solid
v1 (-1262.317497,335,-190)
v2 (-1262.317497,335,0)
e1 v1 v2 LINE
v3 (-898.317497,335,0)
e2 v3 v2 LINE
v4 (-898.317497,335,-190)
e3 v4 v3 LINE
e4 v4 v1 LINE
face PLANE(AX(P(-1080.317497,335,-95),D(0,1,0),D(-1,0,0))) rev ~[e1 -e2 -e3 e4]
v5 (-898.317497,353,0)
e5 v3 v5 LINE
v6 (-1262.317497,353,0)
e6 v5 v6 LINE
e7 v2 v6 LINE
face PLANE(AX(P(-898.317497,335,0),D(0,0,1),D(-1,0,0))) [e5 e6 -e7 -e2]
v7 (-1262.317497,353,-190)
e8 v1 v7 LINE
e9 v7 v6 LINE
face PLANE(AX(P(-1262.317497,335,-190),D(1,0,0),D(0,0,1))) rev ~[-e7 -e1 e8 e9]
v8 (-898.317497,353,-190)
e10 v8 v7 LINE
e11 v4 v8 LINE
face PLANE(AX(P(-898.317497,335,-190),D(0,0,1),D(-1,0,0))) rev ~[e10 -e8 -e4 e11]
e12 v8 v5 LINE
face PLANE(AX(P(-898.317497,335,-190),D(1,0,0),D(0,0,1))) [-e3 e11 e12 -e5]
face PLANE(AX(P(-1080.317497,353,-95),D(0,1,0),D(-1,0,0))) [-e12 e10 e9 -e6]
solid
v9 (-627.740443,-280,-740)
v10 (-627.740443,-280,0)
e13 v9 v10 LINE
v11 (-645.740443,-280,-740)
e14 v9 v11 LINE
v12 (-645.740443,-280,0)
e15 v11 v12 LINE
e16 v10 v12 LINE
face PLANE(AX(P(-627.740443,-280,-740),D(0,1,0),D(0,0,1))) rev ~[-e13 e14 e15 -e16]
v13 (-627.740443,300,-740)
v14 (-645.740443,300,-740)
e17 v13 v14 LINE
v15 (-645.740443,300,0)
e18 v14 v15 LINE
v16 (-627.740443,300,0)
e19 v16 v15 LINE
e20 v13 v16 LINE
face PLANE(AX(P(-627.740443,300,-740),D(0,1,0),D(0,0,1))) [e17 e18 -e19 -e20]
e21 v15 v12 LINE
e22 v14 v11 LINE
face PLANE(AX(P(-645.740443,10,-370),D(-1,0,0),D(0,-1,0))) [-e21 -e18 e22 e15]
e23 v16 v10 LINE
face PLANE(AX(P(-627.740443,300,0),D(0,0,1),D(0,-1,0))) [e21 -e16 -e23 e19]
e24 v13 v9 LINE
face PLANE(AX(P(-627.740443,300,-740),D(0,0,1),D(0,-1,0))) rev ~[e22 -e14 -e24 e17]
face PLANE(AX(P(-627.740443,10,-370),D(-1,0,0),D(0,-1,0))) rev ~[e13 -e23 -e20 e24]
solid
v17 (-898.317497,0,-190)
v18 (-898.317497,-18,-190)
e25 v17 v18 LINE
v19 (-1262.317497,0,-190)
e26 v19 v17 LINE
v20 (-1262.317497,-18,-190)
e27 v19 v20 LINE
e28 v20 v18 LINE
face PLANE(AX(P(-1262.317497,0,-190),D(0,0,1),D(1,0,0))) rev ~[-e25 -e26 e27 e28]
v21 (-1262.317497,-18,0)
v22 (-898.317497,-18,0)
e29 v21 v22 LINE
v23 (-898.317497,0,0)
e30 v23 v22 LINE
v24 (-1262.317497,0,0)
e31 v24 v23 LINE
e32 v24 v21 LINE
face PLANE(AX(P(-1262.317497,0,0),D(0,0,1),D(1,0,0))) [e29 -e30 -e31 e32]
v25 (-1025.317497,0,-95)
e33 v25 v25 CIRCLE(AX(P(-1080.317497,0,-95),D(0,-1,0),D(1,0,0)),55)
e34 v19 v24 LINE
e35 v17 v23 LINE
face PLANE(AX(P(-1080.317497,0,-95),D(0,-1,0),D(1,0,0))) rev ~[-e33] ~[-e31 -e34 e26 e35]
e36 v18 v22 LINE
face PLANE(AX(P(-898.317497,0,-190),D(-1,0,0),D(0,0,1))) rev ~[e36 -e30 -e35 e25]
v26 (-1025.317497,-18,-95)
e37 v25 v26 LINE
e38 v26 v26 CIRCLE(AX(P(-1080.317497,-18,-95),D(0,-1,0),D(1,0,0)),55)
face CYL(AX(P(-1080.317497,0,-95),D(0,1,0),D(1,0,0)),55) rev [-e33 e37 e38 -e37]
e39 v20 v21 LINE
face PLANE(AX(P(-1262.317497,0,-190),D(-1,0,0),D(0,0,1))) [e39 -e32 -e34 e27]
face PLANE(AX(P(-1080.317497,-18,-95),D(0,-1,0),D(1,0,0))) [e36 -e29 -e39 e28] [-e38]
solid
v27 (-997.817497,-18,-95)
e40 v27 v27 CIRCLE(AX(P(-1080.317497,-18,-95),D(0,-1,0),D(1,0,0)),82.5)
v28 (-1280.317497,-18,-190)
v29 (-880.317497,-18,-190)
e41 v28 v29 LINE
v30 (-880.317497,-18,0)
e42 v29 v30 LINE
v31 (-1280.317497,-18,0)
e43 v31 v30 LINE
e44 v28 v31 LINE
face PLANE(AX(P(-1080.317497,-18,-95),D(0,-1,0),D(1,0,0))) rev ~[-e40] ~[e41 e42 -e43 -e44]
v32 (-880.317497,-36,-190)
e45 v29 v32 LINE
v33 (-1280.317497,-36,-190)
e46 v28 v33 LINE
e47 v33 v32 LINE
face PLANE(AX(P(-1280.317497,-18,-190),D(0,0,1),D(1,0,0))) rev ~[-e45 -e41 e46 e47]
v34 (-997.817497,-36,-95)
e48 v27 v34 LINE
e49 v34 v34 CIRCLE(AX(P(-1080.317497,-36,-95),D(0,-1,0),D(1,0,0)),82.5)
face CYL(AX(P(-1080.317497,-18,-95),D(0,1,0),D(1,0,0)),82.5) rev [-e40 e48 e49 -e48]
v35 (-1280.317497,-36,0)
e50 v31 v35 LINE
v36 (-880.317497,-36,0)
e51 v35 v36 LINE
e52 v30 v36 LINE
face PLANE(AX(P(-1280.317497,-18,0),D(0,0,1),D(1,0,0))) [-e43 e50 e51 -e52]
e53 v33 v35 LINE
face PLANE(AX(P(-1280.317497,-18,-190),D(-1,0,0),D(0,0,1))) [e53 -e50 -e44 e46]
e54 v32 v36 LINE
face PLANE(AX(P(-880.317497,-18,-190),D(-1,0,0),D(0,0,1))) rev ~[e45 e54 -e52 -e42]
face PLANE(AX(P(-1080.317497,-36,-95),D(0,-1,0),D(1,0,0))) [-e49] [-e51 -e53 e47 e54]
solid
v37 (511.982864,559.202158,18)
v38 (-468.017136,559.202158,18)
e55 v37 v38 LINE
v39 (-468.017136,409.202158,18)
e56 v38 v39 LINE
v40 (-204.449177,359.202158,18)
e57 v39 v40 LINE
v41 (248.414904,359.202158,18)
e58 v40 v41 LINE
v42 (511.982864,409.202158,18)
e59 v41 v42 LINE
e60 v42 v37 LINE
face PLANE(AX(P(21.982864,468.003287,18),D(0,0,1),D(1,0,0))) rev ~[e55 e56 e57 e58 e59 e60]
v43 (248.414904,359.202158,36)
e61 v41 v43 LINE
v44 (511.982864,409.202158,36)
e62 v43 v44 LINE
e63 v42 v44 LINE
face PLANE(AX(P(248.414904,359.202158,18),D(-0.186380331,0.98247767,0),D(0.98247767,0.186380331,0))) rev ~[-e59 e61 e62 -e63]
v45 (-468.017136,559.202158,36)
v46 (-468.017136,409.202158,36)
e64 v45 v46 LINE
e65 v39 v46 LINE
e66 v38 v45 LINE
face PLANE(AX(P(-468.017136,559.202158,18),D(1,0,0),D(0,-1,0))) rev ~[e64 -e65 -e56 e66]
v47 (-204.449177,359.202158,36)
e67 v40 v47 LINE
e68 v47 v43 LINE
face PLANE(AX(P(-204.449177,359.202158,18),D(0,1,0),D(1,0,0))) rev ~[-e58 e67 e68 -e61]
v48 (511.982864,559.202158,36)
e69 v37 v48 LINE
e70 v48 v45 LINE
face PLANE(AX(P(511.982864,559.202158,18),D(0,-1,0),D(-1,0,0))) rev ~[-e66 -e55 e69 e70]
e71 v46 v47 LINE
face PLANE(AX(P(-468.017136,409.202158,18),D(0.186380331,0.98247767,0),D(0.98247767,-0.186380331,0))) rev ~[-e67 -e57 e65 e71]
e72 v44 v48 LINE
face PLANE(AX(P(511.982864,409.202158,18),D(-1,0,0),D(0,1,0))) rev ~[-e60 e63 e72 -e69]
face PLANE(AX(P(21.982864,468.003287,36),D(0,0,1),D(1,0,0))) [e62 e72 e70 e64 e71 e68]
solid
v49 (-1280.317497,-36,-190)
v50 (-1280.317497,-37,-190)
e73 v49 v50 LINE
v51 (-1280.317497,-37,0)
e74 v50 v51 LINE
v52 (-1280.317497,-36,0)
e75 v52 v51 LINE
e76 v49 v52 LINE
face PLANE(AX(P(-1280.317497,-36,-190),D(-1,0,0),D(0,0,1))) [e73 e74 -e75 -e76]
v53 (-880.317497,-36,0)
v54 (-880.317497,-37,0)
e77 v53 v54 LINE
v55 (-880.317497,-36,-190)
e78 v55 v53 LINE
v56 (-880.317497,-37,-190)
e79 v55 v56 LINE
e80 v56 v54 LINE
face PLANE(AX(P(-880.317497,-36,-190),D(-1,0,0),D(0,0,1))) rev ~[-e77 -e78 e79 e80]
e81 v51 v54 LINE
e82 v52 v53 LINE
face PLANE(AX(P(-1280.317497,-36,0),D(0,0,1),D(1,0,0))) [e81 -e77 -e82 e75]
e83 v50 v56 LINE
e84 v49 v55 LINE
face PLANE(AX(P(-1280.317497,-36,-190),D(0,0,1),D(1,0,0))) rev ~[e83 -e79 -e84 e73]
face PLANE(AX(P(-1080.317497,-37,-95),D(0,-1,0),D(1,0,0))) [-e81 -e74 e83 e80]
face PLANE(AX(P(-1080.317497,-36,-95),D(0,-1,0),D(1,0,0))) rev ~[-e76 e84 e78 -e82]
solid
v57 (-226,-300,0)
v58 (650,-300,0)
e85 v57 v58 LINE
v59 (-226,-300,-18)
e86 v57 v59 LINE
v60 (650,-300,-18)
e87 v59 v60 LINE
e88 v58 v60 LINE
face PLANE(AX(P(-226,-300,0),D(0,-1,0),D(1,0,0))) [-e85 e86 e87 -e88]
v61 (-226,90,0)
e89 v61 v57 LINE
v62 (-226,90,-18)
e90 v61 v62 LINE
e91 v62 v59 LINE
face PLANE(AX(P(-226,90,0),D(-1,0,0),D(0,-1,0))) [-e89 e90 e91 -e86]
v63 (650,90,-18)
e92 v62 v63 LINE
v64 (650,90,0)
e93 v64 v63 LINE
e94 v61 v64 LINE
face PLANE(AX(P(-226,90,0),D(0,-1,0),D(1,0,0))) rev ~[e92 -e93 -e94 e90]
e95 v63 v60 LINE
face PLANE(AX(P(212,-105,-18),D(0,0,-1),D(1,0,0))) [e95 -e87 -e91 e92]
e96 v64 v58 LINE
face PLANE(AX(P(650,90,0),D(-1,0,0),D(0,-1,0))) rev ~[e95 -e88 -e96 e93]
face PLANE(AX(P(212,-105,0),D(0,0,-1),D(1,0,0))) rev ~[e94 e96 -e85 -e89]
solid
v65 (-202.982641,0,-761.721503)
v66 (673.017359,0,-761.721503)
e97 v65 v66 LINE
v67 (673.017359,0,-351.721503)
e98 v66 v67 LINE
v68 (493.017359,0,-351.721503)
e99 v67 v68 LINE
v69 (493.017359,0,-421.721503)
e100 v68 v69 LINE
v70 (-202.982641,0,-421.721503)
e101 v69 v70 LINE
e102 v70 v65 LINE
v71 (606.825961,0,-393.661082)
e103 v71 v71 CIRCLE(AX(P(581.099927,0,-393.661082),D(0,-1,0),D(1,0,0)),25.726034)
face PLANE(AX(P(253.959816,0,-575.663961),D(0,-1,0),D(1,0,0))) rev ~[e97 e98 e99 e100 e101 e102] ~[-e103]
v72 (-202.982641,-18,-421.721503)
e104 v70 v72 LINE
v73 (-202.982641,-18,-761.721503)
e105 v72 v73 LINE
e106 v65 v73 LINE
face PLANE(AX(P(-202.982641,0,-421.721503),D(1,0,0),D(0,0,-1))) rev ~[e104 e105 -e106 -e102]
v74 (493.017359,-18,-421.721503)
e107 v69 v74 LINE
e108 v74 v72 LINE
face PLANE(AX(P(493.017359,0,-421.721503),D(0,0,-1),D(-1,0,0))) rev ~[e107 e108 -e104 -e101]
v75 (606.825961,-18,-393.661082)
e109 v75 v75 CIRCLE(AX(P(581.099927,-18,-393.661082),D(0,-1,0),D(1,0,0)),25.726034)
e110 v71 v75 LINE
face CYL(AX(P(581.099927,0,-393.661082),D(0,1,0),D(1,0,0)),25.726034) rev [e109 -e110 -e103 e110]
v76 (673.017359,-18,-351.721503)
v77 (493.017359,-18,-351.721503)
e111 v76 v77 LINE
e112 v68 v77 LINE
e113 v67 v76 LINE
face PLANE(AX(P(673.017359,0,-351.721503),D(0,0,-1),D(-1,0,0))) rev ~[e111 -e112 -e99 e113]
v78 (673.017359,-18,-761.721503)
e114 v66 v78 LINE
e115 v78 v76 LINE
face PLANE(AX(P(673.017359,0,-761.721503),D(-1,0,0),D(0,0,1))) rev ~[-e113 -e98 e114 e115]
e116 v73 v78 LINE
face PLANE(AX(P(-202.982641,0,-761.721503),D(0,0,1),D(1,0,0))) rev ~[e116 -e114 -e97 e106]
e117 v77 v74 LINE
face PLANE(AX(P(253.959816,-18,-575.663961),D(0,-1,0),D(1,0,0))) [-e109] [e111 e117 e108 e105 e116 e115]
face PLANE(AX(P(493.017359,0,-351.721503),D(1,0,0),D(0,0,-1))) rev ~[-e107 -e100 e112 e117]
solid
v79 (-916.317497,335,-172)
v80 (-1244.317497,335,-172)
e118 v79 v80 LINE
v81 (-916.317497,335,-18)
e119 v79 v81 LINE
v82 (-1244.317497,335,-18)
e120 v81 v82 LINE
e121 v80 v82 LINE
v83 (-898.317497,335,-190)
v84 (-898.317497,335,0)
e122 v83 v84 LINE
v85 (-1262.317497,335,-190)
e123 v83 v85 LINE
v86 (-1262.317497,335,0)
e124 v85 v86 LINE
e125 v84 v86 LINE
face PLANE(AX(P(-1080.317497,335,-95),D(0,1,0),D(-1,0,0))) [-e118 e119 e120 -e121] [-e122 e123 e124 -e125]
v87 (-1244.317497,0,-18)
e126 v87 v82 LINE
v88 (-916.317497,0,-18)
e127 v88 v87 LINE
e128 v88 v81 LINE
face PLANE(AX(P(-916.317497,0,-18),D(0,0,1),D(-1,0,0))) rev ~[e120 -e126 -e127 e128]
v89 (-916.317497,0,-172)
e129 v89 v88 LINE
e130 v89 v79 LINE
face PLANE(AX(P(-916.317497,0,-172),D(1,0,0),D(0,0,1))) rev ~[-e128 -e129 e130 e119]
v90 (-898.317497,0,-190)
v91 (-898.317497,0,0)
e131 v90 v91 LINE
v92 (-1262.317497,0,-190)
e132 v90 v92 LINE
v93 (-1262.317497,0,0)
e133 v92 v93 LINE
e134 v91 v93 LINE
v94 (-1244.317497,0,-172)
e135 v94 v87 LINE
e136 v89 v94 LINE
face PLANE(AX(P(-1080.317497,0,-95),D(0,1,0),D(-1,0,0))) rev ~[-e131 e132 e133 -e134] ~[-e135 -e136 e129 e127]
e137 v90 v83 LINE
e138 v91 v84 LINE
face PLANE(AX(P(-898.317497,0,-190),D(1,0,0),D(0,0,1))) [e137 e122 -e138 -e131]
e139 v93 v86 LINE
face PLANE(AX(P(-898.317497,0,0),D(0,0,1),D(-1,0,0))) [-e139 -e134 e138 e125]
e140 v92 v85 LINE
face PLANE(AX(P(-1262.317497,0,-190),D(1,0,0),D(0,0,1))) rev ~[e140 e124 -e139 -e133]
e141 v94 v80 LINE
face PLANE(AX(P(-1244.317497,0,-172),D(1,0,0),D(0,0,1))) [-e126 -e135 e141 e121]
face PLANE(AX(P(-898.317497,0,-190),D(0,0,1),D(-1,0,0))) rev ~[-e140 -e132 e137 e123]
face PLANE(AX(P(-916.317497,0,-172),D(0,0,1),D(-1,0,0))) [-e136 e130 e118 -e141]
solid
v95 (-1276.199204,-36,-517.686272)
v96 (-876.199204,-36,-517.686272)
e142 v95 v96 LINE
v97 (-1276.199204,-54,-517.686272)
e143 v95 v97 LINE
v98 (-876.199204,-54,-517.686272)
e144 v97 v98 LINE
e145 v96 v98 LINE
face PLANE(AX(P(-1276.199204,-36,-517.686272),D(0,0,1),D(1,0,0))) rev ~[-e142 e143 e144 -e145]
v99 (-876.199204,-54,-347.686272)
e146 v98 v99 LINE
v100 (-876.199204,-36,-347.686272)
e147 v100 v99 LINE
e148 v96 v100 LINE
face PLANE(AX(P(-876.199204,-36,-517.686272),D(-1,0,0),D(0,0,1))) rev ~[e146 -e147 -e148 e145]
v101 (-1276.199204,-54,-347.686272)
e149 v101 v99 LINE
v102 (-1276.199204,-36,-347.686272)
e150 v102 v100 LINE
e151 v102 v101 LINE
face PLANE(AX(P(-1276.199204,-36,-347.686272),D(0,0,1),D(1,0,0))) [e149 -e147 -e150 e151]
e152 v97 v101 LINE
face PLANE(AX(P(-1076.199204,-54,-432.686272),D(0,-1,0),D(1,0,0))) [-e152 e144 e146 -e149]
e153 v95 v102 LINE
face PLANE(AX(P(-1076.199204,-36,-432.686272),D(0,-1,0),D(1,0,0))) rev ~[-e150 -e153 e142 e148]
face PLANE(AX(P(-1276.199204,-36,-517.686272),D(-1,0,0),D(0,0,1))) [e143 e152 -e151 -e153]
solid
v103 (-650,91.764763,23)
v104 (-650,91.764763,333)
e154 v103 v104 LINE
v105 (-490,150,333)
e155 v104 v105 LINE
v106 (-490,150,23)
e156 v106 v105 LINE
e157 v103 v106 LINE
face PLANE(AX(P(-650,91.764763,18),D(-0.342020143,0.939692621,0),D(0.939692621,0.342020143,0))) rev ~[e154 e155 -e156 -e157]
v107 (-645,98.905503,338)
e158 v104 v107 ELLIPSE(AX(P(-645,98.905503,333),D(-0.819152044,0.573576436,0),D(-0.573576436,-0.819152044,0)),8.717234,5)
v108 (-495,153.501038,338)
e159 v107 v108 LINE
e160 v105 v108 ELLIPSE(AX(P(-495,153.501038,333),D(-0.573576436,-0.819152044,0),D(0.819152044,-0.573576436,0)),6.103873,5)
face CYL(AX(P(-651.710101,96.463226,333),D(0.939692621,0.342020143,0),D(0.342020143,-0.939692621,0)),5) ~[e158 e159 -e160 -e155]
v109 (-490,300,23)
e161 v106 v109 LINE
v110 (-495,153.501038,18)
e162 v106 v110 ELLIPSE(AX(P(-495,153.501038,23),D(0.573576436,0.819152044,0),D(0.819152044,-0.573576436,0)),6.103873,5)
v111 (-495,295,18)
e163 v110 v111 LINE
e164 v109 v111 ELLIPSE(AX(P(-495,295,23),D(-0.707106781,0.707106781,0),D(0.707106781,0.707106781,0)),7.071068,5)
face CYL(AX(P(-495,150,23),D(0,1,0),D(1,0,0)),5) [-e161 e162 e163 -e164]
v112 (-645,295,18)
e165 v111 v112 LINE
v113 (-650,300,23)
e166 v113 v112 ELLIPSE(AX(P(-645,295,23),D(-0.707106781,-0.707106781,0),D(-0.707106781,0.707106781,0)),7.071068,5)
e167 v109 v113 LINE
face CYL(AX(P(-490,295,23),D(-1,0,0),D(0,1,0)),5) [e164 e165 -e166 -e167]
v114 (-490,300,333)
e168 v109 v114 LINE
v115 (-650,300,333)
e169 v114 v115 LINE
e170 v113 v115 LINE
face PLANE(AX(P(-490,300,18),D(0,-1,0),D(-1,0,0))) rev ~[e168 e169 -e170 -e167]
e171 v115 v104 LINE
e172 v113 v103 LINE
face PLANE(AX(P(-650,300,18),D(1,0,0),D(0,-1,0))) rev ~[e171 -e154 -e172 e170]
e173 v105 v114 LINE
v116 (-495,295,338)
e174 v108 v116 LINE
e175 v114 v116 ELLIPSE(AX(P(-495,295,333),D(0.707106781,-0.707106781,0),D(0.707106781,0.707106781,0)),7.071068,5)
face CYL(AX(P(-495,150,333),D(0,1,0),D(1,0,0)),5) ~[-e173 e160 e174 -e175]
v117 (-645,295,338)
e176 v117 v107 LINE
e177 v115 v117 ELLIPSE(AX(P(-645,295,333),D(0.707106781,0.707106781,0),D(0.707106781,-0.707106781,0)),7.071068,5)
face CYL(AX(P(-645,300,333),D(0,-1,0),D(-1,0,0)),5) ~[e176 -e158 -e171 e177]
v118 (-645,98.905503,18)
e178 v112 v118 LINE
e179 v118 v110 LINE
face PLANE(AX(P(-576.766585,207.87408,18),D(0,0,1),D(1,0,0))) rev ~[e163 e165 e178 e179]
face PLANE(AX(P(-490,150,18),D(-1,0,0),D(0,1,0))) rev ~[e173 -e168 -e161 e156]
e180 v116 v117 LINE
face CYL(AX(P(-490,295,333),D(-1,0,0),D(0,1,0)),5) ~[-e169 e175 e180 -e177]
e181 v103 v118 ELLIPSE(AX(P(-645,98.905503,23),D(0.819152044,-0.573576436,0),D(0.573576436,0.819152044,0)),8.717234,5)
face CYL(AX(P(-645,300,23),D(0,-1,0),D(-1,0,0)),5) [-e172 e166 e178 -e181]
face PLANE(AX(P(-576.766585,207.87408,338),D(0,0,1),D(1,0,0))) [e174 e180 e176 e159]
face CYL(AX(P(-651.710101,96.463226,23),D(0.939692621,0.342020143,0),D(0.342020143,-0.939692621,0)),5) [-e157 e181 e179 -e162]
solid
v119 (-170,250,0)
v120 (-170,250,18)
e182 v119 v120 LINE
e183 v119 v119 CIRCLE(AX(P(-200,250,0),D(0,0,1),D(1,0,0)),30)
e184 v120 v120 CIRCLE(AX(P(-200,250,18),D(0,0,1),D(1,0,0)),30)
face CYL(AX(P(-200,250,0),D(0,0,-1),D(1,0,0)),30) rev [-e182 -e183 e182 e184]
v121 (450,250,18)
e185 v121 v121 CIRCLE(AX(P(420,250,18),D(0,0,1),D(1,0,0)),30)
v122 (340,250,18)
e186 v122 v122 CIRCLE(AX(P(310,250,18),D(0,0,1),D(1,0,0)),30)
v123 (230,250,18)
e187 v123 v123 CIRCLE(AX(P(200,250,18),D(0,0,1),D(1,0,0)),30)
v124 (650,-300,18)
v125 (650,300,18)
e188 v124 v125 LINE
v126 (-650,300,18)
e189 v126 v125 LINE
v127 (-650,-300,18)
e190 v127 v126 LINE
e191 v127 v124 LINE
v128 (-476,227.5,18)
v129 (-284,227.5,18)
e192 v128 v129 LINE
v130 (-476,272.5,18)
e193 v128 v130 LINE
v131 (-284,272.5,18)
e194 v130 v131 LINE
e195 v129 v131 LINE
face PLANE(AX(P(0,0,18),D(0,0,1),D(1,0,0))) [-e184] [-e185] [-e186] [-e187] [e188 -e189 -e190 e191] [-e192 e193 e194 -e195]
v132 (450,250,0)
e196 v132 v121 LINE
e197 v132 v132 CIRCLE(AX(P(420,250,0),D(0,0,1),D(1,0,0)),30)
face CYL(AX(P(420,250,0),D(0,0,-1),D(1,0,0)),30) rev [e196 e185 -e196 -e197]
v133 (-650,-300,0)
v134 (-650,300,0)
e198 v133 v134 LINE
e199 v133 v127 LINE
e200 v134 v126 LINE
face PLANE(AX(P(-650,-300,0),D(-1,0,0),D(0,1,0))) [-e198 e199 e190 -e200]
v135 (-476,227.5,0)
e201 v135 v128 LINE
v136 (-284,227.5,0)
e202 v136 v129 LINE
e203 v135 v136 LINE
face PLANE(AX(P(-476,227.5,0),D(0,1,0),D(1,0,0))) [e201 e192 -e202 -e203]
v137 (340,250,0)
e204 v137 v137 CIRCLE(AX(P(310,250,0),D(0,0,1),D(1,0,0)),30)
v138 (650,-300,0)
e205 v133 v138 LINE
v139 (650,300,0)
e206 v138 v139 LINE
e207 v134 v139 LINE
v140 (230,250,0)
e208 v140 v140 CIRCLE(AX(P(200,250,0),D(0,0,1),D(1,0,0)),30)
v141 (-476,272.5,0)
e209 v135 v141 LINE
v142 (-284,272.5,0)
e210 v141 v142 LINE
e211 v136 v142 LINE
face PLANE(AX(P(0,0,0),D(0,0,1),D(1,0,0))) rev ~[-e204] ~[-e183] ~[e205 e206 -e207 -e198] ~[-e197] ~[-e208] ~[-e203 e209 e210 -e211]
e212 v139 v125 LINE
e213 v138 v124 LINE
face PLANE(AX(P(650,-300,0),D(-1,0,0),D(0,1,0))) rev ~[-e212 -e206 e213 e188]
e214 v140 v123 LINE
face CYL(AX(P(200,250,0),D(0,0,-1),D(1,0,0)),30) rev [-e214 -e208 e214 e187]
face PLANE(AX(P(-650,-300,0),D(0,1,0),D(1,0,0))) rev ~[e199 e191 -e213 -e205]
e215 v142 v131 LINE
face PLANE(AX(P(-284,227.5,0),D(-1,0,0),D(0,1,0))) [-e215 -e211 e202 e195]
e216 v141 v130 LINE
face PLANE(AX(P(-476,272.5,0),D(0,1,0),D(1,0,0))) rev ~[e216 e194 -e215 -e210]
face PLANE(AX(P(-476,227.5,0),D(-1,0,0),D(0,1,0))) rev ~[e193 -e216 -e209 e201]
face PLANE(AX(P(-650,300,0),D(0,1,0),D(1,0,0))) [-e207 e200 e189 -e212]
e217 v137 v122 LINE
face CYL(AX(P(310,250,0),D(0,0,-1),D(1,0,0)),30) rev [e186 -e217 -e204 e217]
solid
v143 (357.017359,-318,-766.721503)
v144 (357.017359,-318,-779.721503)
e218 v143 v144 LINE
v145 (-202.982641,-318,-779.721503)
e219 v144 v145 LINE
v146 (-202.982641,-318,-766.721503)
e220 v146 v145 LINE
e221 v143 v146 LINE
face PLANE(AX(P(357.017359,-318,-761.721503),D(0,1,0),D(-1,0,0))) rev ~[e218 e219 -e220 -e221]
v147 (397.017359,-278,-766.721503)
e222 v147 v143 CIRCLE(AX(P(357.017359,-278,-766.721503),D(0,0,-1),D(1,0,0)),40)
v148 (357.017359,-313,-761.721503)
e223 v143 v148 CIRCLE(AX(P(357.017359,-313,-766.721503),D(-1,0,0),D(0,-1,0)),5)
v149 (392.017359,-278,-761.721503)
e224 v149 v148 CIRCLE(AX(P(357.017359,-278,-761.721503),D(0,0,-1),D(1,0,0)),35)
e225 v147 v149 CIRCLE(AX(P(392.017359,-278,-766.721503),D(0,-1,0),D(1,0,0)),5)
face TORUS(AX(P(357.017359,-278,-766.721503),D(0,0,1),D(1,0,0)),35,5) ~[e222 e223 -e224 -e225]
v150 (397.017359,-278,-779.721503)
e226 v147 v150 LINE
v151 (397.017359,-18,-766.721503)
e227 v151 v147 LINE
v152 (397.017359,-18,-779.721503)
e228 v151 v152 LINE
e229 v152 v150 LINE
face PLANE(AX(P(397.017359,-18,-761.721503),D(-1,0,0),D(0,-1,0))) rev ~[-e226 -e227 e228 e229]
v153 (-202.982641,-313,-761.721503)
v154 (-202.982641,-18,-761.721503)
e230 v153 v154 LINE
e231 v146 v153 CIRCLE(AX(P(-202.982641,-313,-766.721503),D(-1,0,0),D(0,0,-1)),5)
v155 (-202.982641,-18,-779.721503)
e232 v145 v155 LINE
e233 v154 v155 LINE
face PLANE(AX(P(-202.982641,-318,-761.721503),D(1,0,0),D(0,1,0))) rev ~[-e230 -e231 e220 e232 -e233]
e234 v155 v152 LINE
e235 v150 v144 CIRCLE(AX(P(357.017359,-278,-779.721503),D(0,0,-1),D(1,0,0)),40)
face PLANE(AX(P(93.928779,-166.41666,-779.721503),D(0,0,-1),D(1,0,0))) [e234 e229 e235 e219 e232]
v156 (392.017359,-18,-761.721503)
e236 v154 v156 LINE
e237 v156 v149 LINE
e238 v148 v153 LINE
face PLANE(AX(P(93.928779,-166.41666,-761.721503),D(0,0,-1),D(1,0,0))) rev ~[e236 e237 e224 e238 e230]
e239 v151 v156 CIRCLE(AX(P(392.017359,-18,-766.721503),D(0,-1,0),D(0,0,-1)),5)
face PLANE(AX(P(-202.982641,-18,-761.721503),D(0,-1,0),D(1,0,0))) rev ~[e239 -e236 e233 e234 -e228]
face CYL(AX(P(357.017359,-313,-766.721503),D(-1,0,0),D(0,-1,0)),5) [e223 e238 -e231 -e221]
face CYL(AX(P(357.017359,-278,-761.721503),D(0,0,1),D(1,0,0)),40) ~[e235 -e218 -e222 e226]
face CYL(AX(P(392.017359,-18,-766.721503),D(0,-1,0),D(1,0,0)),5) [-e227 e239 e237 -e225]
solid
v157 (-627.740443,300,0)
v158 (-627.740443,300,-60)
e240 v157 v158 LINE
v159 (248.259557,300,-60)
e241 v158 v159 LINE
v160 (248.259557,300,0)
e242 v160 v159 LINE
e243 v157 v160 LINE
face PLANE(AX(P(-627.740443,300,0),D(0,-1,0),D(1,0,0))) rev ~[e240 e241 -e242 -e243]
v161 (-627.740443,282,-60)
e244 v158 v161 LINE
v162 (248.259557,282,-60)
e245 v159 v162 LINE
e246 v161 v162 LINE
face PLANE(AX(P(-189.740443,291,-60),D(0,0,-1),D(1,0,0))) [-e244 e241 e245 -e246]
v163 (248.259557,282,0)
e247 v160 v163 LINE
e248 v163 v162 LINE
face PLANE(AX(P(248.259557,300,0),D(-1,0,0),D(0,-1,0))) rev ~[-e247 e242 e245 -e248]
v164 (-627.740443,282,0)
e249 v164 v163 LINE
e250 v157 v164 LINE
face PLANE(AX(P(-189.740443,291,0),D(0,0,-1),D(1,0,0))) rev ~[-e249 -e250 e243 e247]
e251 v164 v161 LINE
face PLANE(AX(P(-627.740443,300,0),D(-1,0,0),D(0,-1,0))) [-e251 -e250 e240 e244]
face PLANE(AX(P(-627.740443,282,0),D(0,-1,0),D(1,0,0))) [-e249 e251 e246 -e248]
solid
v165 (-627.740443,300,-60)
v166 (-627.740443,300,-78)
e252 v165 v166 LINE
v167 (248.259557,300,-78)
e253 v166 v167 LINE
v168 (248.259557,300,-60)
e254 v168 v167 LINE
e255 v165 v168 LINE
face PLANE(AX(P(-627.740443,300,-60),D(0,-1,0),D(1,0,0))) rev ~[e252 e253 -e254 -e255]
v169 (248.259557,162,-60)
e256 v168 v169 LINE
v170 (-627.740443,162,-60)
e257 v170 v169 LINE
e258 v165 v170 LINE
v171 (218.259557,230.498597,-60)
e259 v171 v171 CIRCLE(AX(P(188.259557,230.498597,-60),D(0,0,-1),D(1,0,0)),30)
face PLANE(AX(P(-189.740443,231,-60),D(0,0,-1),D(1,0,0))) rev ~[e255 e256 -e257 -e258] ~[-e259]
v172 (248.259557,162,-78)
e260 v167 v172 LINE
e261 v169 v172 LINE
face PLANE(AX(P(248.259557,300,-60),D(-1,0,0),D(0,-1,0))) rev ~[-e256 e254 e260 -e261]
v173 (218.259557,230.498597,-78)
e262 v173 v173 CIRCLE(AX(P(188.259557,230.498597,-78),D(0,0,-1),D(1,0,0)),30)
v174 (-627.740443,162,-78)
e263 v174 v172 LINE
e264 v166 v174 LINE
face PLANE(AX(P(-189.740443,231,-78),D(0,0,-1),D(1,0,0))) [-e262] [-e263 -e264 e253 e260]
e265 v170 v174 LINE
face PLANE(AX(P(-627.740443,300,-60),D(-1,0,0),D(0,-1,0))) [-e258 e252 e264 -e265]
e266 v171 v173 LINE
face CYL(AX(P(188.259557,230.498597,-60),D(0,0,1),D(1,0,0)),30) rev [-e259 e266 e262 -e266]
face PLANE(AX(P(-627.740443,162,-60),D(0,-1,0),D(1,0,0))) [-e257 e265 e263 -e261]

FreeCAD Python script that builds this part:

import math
import FreeCAD as App
import Part
import Sketcher
Q = App.Units.Quantity


def edges_at(feature, points):
    """Names of the edges that pass closest to the given points."""
    edges = feature.Shape.Edges
    near = lambda p: min(range(len(edges)), key=lambda i: edges[i].distToShape(Part.Vertex(*p))[0])
    return sorted({f"Edge{near(p) + 1}" for p in points})

doc = App.newDocument("Part")
body = doc.addObject("PartDesign::Body", "Body")

# Sketch on XY plane
sketch1 = doc.addObject("Sketcher::SketchObject", "Sketch")
body.addObject(sketch1)
sketch1.AttachmentSupport = (doc.XY_Plane, [""])
sketch1.MapMode = "FlatFace"
sketch1.addGeometry([
    Part.LineSegment(App.Vector(-650, 300, 0), App.Vector(-650, -300, 0)),  # 0
    Part.LineSegment(App.Vector(-650, -300, 0), App.Vector(650, -300, 0)),  # 1
    Part.LineSegment(App.Vector(650, -300, 0), App.Vector(650, 300, 0)),  # 2
    Part.LineSegment(App.Vector(650, 300, 0), App.Vector(-650, 300, 0)),  # 3
    Part.LineSegment(App.Vector(-284, 228, 0), App.Vector(-476, 228, 0)),  # 4
    Part.LineSegment(App.Vector(-476, 228, 0), App.Vector(-476, 272, 0)),  # 5
    Part.LineSegment(App.Vector(-476, 272, 0), App.Vector(-284, 272, 0)),  # 6
    Part.LineSegment(App.Vector(-284, 272, 0), App.Vector(-284, 228, 0)),  # 7
    Part.Circle(App.Vector(-200, 250, 0), App.Vector(0, 0, 1), 30),  # 8
    Part.Circle(App.Vector(200, 250, 0), App.Vector(0, 0, 1), 30),  # 9
    Part.Circle(App.Vector(310, 250, 0), App.Vector(0, 0, 1), 30),  # 10
    Part.Circle(App.Vector(420, 250, 0), App.Vector(0, 0, 1), 30),  # 11
], False)
sketch1.addConstraint([
    Sketcher.Constraint("Coincident", 0, 2, 1, 1),
    Sketcher.Constraint("Coincident", 1, 2, 2, 1),
    Sketcher.Constraint("Coincident", 2, 2, 3, 1),
    Sketcher.Constraint("Coincident", 3, 2, 0, 1),
    Sketcher.Constraint("Coincident", 4, 2, 5, 1),
    Sketcher.Constraint("Coincident", 5, 2, 6, 1),
    Sketcher.Constraint("Coincident", 6, 2, 7, 1),
    Sketcher.Constraint("Coincident", 7, 2, 4, 1),
    Sketcher.Constraint("Vertical", 0),
    Sketcher.Constraint("Horizontal", 1),
    Sketcher.Constraint("Vertical", 2),
    Sketcher.Constraint("Horizontal", 3),
    Sketcher.Constraint("Horizontal", 4),
    Sketcher.Constraint("Vertical", 5),
    Sketcher.Constraint("Horizontal", 6),
    Sketcher.Constraint("Vertical", 7),
    Sketcher.Constraint("Equal", 8, 9),
    Sketcher.Constraint("Equal", 9, 10),
    Sketcher.Constraint("Equal", 10, 11),
    Sketcher.Constraint("Symmetric", 0, 2, 2, 2, -1, 1),
    Sketcher.Constraint("Symmetric", 8, 3, 9, 3, -2),
    Sketcher.Constraint("Horizontal", 9, 3, 10, 3),
    Sketcher.Constraint("Horizontal", 10, 3, 11, 3),
    Sketcher.Constraint("Diameter", 8, Q("60 mm")),
    Sketcher.Constraint("DistanceX", 1, 1, 1, 2, Q("1300 mm")),
    Sketcher.Constraint("DistanceX", 4, 2, 4, 1, Q("192 mm")),
    Sketcher.Constraint("DistanceY", 0, 2, 0, 1, Q("600 mm")),
    Sketcher.Constraint("DistanceY", 5, 1, 5, 2, Q("45 mm")),
    Sketcher.Constraint("DistanceX", 8, 3, -1, 1, Q("200 mm")),
    Sketcher.Constraint("DistanceY", -1, 1, 8, 3, Q("250 mm")),
    Sketcher.Constraint("DistanceX", -1, 1, 10, 3, Q("310 mm")),
    Sketcher.Constraint("DistanceX", -1, 1, 11, 3, Q("420 mm")),
    Sketcher.Constraint("DistanceX", 4, 2, -1, 1, Q("476 mm")),
    Sketcher.Constraint("DistanceY", -1, 1, 4, 2, Q("227.5 mm")),
])
pad1 = doc.addObject("PartDesign::Pad", "Pad")
body.addObject(pad1)
pad1.Profile = sketch1
pad1.Length = 18
body2 = doc.addObject("PartDesign::Body", "Body001")

# Sketch on XY plane
sketch2 = doc.addObject("Sketcher::SketchObject", "Sketch001")
body2.addObject(sketch2)
sketch2.AttachmentSupport = (doc.getObject("XY_Plane001"), [""])
sketch2.MapMode = "FlatFace"
sketch2.addGeometry([
    Part.LineSegment(App.Vector(-628, 282, 0), App.Vector(-628, 300, 0)),
    Part.LineSegment(App.Vector(-628, 300, 0), App.Vector(248, 300, 0)),
    Part.LineSegment(App.Vector(248, 300, 0), App.Vector(248, 282, 0)),
    Part.LineSegment(App.Vector(248, 282, 0), App.Vector(-628, 282, 0)),
], False)
sketch2.addConstraint([
    Sketcher.Constraint("Coincident", 0, 2, 1, 1),
    Sketcher.Constraint("Coincident", 1, 2, 2, 1),
    Sketcher.Constraint("Coincident", 2, 2, 3, 1),
    Sketcher.Constraint("Coincident", 3, 2, 0, 1),
    Sketcher.Constraint("Vertical", 0),
    Sketcher.Constraint("Horizontal", 1),
    Sketcher.Constraint("Vertical", 2),
    Sketcher.Constraint("Horizontal", 3),
    Sketcher.Constraint("DistanceX", 1, 1, 1, 2, Q("876 mm")),
    Sketcher.Constraint("DistanceY", 0, 1, 0, 2, Q("18 mm")),
    Sketcher.Constraint("DistanceY", -1, 1, 0, 2, Q("300 mm")),
    Sketcher.Constraint("DistanceX", 0, 2, -1, 1, Q("627.740443 mm")),
])
pad2 = doc.addObject("PartDesign::Pad", "Pad001")
body2.addObject(pad2)
pad2.Profile = sketch2
pad2.Length = 60
pad2.Reversed = True
body3 = doc.addObject("PartDesign::Body", "Body002")

# Sketch on XY plane
sketch3 = doc.addObject("Sketcher::SketchObject", "Sketch002")
body3.addObject(sketch3)
sketch3.AttachmentSupport = (doc.getObject("XY_Plane002"), [""])
sketch3.MapMode = "FlatFace"
sketch3.AttachmentOffset = App.Placement(App.Vector(0, 0, -60), App.Rotation())
sketch3.addGeometry([
    Part.LineSegment(App.Vector(-628, 162, 0), App.Vector(-628, 300, 0)),  # 0
    Part.LineSegment(App.Vector(-628, 300, 0), App.Vector(248, 300, 0)),  # 1
    Part.LineSegment(App.Vector(248, 300, 0), App.Vector(248, 162, 0)),  # 2
    Part.LineSegment(App.Vector(248, 162, 0), App.Vector(-628, 162, 0)),  # 3
    Part.Circle(App.Vector(188, 230, 0), App.Vector(0, 0, 1), 30),  # 4
], False)
sketch3.addConstraint([
    Sketcher.Constraint("Coincident", 0, 2, 1, 1),
    Sketcher.Constraint("Coincident", 1, 2, 2, 1),
    Sketcher.Constraint("Coincident", 2, 2, 3, 1),
    Sketcher.Constraint("Coincident", 3, 2, 0, 1),
    Sketcher.Constraint("Vertical", 0),
    Sketcher.Constraint("Horizontal", 1),
    Sketcher.Constraint("Vertical", 2),
    Sketcher.Constraint("Horizontal", 3),
    Sketcher.Constraint("Diameter", 4, Q("60 mm")),
    Sketcher.Constraint("DistanceX", 1, 1, 1, 2, Q("876 mm")),
    Sketcher.Constraint("DistanceY", 0, 1, 0, 2, Q("138 mm")),
    Sketcher.Constraint("DistanceY", -1, 1, 0, 2, Q("300 mm")),
    Sketcher.Constraint("DistanceX", 0, 2, 4, 3, Q("816 mm")),
    Sketcher.Constraint("DistanceX", -1, 1, 4, 3, Q("188.259557 mm")),
    Sketcher.Constraint("DistanceY", -1, 1, 4, 3, Q("230.498597 mm")),
])
pad3 = doc.addObject("PartDesign::Pad", "Pad002")
body3.addObject(pad3)
pad3.Profile = sketch3
pad3.Length = 18
pad3.Reversed = True
body4 = doc.addObject("PartDesign::Body", "Body003")

# Sketch on YZ plane
sketch4 = doc.addObject("Sketcher::SketchObject", "Sketch003")
body4.addObject(sketch4)
sketch4.AttachmentSupport = (doc.getObject("YZ_Plane003"), [""])
sketch4.MapMode = "FlatFace"
sketch4.AttachmentOffset = App.Placement(App.Vector(0, 0, -627.740443), App.Rotation())
sketch4.addGeometry([
    Part.LineSegment(App.Vector(300, 0, 0), App.Vector(300, -740, 0)),
    Part.LineSegment(App.Vector(300, -740, 0), App.Vector(-280, -740, 0)),
    Part.LineSegment(App.Vector(-280, -740, 0), App.Vector(-280, 0, 0)),
    Part.LineSegment(App.Vector(-280, 0, 0), App.Vector(300, 0, 0)),
], False)
sketch4.addConstraint([
    Sketcher.Constraint("Coincident", 0, 2, 1, 1),
    Sketcher.Constraint("Coincident", 1, 2, 2, 1),
    Sketcher.Constraint("Coincident", 2, 2, 3, 1),
    Sketcher.Constraint("Coincident", 3, 2, 0, 1),
    Sketcher.Constraint("Vertical", 0),
    Sketcher.Constraint("Horizontal", 1),
    Sketcher.Constraint("Vertical", 2),
    Sketcher.Constraint("Horizontal", 3),
    Sketcher.Constraint("PointOnObject", 2, 2, -1),
    Sketcher.Constraint("DistanceX", 1, 2, 1, 1, Q("580 mm")),
    Sketcher.Constraint("DistanceY", 0, 2, 0, 1, Q("740 mm")),
    Sketcher.Constraint("DistanceX", -1, 1, 0, 2, Q("300 mm")),
])
pad4 = doc.addObject("PartDesign::Pad", "Pad003")
body4.addObject(pad4)
pad4.Profile = sketch4
pad4.Length = 18
pad4.Reversed = True
body5 = doc.addObject("PartDesign::Body", "Body004")

# Sketch on XY plane
sketch5 = doc.addObject("Sketcher::SketchObject", "Sketch004")
body5.addObject(sketch5)
sketch5.AttachmentSupport = (doc.getObject("XY_Plane004"), [""])
sketch5.MapMode = "FlatFace"
sketch5.AttachmentOffset = App.Placement(App.Vector(0, 0, 18), App.Rotation())
sketch5.addGeometry([
    Part.LineSegment(App.Vector(-490, 300, 0), App.Vector(-650, 300, 0)),
    Part.LineSegment(App.Vector(-650, 300, 0), App.Vector(-650, 92, 0)),
    Part.LineSegment(App.Vector(-650, 92, 0), App.Vector(-490, 150, 0)),
    Part.LineSegment(App.Vector(-490, 150, 0), App.Vector(-490, 300, 0)),
], False)
sketch5.addConstraint([
    Sketcher.Constraint("Coincident", 0, 2, 1, 1),
    Sketcher.Constraint("Coincident", 1, 2, 2, 1),
    Sketcher.Constraint("Coincident", 2, 2, 3, 1),
    Sketcher.Constraint("Coincident", 3, 2, 0, 1),
    Sketcher.Constraint("Horizontal", 0),
    Sketcher.Constraint("Vertical", 1),
    Sketcher.Constraint("Vertical", 3),
    Sketcher.Constraint("DistanceX", 0, 2, 0, 1, Q("160 mm")),
    Sketcher.Constraint("DistanceY", 3, 1, 3, 2, Q("150 mm")),
    Sketcher.Constraint("Angle", 2, Q("20 deg")),
    Sketcher.Constraint("DistanceX", 0, 2, -1, 1, Q("650 mm")),
    Sketcher.Constraint("DistanceY", -1, 1, 0, 2, Q("300 mm")),
])
pad5 = doc.addObject("PartDesign::Pad", "Pad004")
body5.addObject(pad5)
pad5.Profile = sketch5
pad5.Length = 320
doc.recompute()

fillet = doc.addObject("PartDesign::Fillet", "Fillet")
body5.addObject(fillet)
fillet.Base = (pad5, edges_at(pad5, [
    (-650, 195.882, 338),
    (-570, 120.882, 338),
    (-490, 225, 338),
    (-570, 300, 338),
    (-570, 120.882, 18),
    (-490, 225, 18),
    (-570, 300, 18),
    (-650, 195.882, 18),
]))
fillet.Radius = 5
body6 = doc.addObject("PartDesign::Body", "Body005")

# Sketch on XZ plane
sketch6 = doc.addObject("Sketcher::SketchObject", "Sketch005")
body6.addObject(sketch6)
sketch6.AttachmentSupport = (doc.getObject("XZ_Plane005"), [""])
sketch6.MapMode = "FlatFace"
sketch6.addGeometry([
    Part.LineSegment(App.Vector(-1262, 0, 0), App.Vector(-1262, -190, 0)),  # 0
    Part.LineSegment(App.Vector(-1262, -190, 0), App.Vector(-898, -190, 0)),  # 1
    Part.LineSegment(App.Vector(-898, -190, 0), App.Vector(-898, 0, 0)),  # 2
    Part.LineSegment(App.Vector(-898, 0, 0), App.Vector(-1262, 0, 0)),  # 3
    Part.Circle(App.Vector(-1080, -95, 0), App.Vector(0, 0, 1), 55),  # 4
], False)
sketch6.addConstraint([
    Sketcher.Constraint("Coincident", 0, 2, 1, 1),
    Sketcher.Constraint("Coincident", 1, 2, 2, 1),
    Sketcher.Constraint("Coincident", 2, 2, 3, 1),
    Sketcher.Constraint("Coincident", 3, 2, 0, 1),
    Sketcher.Constraint("Vertical", 0),
    Sketcher.Constraint("Horizontal", 1),
    Sketcher.Constraint("Vertical", 2),
    Sketcher.Constraint("Horizontal", 3),
    Sketcher.Constraint("PointOnObject", 2, 2, -1),
    Sketcher.Constraint("Diameter", 4, Q("110 mm")),
    Sketcher.Constraint("DistanceX", 1, 1, 1, 2, Q("364 mm")),
    Sketcher.Constraint("DistanceY", 0, 2, 0, 1, Q("190 mm")),
    Sketcher.Constraint("DistanceY", 4, 3, -1, 1, Q("95 mm")),
    Sketcher.Constraint("DistanceX", 0, 2, 4, 3, Q("182 mm")),
    Sketcher.Constraint("DistanceX", 4, 3, -1, 1, Q("1080.317497 mm")),
])
pad6 = doc.addObject("PartDesign::Pad", "Pad005")
body6.addObject(pad6)
pad6.Profile = sketch6
pad6.Length = 18
body7 = doc.addObject("PartDesign::Body", "Body006")

# Sketch on XZ plane
sketch7 = doc.addObject("Sketcher::SketchObject", "Sketch006")
body7.addObject(sketch7)
sketch7.AttachmentSupport = (doc.getObject("XZ_Plane006"), [""])
sketch7.MapMode = "FlatFace"
sketch7.addGeometry([
    Part.LineSegment(App.Vector(-898, 0, 0), App.Vector(-898, -190, 0)),  # 0
    Part.LineSegment(App.Vector(-898, -190, 0), App.Vector(-1262, -190, 0)),  # 1
    Part.LineSegment(App.Vector(-1262, -190, 0), App.Vector(-1262, 0, 0)),  # 2
    Part.LineSegment(App.Vector(-1262, 0, 0), App.Vector(-898, 0, 0)),  # 3
    Part.LineSegment(App.Vector(-1244, -172, 0), App.Vector(-916, -172, 0)),  # 4
    Part.LineSegment(App.Vector(-916, -172, 0), App.Vector(-916, -18, 0)),  # 5
    Part.LineSegment(App.Vector(-916, -18, 0), App.Vector(-1244, -18, 0)),  # 6
    Part.LineSegment(App.Vector(-1244, -18, 0), App.Vector(-1244, -172, 0)),  # 7
], False)
sketch7.addConstraint([
    Sketcher.Constraint("Coincident", 0, 2, 1, 1),
    Sketcher.Constraint("Coincident", 1, 2, 2, 1),
    Sketcher.Constraint("Coincident", 2, 2, 3, 1),
    Sketcher.Constraint("Coincident", 3, 2, 0, 1),
    Sketcher.Constraint("Coincident", 4, 2, 5, 1),
    Sketcher.Constraint("Coincident", 5, 2, 6, 1),
    Sketcher.Constraint("Coincident", 6, 2, 7, 1),
    Sketcher.Constraint("Coincident", 7, 2, 4, 1),
    Sketcher.Constraint("Vertical", 0),
    Sketcher.Constraint("Horizontal", 1),
    Sketcher.Constraint("Vertical", 2),
    Sketcher.Constraint("Horizontal", 3),
    Sketcher.Constraint("Horizontal", 4),
    Sketcher.Constraint("Vertical", 5),
    Sketcher.Constraint("Horizontal", 6),
    Sketcher.Constraint("Vertical", 7),
    Sketcher.Constraint("PointOnObject", 2, 2, -1),
    Sketcher.Constraint("DistanceX", 1, 2, 1, 1, Q("364 mm")),
    Sketcher.Constraint("DistanceX", 4, 1, 4, 2, Q("328 mm")),
    Sketcher.Constraint("DistanceY", 0, 2, 0, 1, Q("190 mm")),
    Sketcher.Constraint("DistanceY", 5, 1, 5, 2, Q("154 mm")),
    Sketcher.Constraint("DistanceY", 4, 2, -1, 1, Q("172 mm")),
    Sketcher.Constraint("DistanceX", 4, 2, 0, 2, Q("18 mm")),
    Sketcher.Constraint("DistanceX", 0, 2, -1, 1, Q("898.317497 mm")),
])
pad7 = doc.addObject("PartDesign::Pad", "Pad006")
body7.addObject(pad7)
pad7.Profile = sketch7
pad7.Length = 335
pad7.Reversed = True
body8 = doc.addObject("PartDesign::Body", "Body007")

# Sketch on XZ plane
sketch8 = doc.addObject("Sketcher::SketchObject", "Sketch007")
body8.addObject(sketch8)
sketch8.AttachmentSupport = (doc.getObject("XZ_Plane007"), [""])
sketch8.MapMode = "FlatFace"
sketch8.AttachmentOffset = App.Placement(App.Vector(0, 0, 18), App.Rotation())
sketch8.addGeometry([
    Part.LineSegment(App.Vector(-1280, 0, 0), App.Vector(-1280, -190, 0)),  # 0
    Part.LineSegment(App.Vector(-1280, -190, 0), App.Vector(-880, -190, 0)),  # 1
    Part.LineSegment(App.Vector(-880, -190, 0), App.Vector(-880, 0, 0)),  # 2
    Part.LineSegment(App.Vector(-880, 0, 0), App.Vector(-1280, 0, 0)),  # 3
    Part.Circle(App.Vector(-1080, -95, 0), App.Vector(0, 0, 1), 82),  # 4
], False)
sketch8.addConstraint([
    Sketcher.Constraint("Coincident", 0, 2, 1, 1),
    Sketcher.Constraint("Coincident", 1, 2, 2, 1),
    Sketcher.Constraint("Coincident", 2, 2, 3, 1),
    Sketcher.Constraint("Coincident", 3, 2, 0, 1),
    Sketcher.Constraint("Vertical", 0),
    Sketcher.Constraint("Horizontal", 1),
    Sketcher.Constraint("Vertical", 2),
    Sketcher.Constraint("Horizontal", 3),
    Sketcher.Constraint("PointOnObject", 2, 2, -1),
    Sketcher.Constraint("Diameter", 4, Q("165 mm")),
    Sketcher.Constraint("DistanceX", 1, 1, 1, 2, Q("400 mm")),
    Sketcher.Constraint("DistanceY", 0, 2, 0, 1, Q("190 mm")),
    Sketcher.Constraint("DistanceY", 4, 3, -1, 1, Q("95 mm")),
    Sketcher.Constraint("DistanceX", 0, 2, 4, 3, Q("200 mm")),
    Sketcher.Constraint("DistanceX", 4, 3, -1, 1, Q("1080.317497 mm")),
])
pad8 = doc.addObject("PartDesign::Pad", "Pad007")
body8.addObject(pad8)
pad8.Profile = sketch8
pad8.Length = 18
body9 = doc.addObject("PartDesign::Body", "Body008")

# Sketch on XZ plane
sketch9 = doc.addObject("Sketcher::SketchObject", "Sketch008")
body9.addObject(sketch9)
sketch9.AttachmentSupport = (doc.getObject("XZ_Plane008"), [""])
sketch9.MapMode = "FlatFace"
sketch9.AttachmentOffset = App.Placement(App.Vector(0, 0, -335), App.Rotation())
sketch9.addGeometry([
    Part.LineSegment(App.Vector(-898, 0, 0), App.Vector(-898, -190, 0)),
    Part.LineSegment(App.Vector(-898, -190, 0), App.Vector(-1262, -190, 0)),
    Part.LineSegment(App.Vector(-1262, -190, 0), App.Vector(-1262, 0, 0)),
    Part.LineSegment(App.Vector(-1262, 0, 0), App.Vector(-898, 0, 0)),
], False)
sketch9.addConstraint([
    Sketcher.Constraint("Coincident", 0, 2, 1, 1),
    Sketcher.Constraint("Coincident", 1, 2, 2, 1),
    Sketcher.Constraint("Coincident", 2, 2, 3, 1),
    Sketcher.Constraint("Coincident", 3, 2, 0, 1),
    Sketcher.Constraint("Vertical", 0),
    Sketcher.Constraint("Horizontal", 1),
    Sketcher.Constraint("Vertical", 2),
    Sketcher.Constraint("Horizontal", 3),
    Sketcher.Constraint("PointOnObject", 2, 2, -1),
    Sketcher.Constraint("DistanceX", 1, 2, 1, 1, Q("364 mm")),
    Sketcher.Constraint("DistanceY", 0, 2, 0, 1, Q("190 mm")),
    Sketcher.Constraint("DistanceX", 0, 2, -1, 1, Q("898.317497 mm")),
])
pad9 = doc.addObject("PartDesign::Pad", "Pad008")
body9.addObject(pad9)
pad9.Profile = sketch9
pad9.Length = 18
pad9.Reversed = True
body10 = doc.addObject("PartDesign::Body", "Body009")

# Sketch on XY plane
sketch10 = doc.addObject("Sketcher::SketchObject", "Sketch009")
body10.addObject(sketch10)
sketch10.AttachmentSupport = (doc.getObject("XY_Plane009"), [""])
sketch10.MapMode = "FlatFace"
sketch10.addGeometry([
    Part.LineSegment(App.Vector(-226, -300, 0), App.Vector(-226, 90, 0)),
    Part.LineSegment(App.Vector(-226, 90, 0), App.Vector(650, 90, 0)),
    Part.LineSegment(App.Vector(650, 90, 0), App.Vector(650, -300, 0)),
    Part.LineSegment(App.Vector(650, -300, 0), App.Vector(-226, -300, 0)),
], False)
sketch10.addConstraint([
    Sketcher.Constraint("Coincident", 0, 2, 1, 1),
    Sketcher.Constraint("Coincident", 1, 2, 2, 1),
    Sketcher.Constraint("Coincident", 2, 2, 3, 1),
    Sketcher.Constraint("Coincident", 3, 2, 0, 1),
    Sketcher.Constraint("Vertical", 0),
    Sketcher.Constraint("Horizontal", 1),
    Sketcher.Constraint("Vertical", 2),
    Sketcher.Constraint("Horizontal", 3),
    Sketcher.Constraint("DistanceX", 1, 1, 1, 2, Q("876 mm")),
    Sketcher.Constraint("DistanceY", 0, 1, 0, 2, Q("390 mm")),
    Sketcher.Constraint("DistanceX", 0, 2, -1, 1, Q("226 mm")),
    Sketcher.Constraint("DistanceY", -1, 1, 0, 2, Q("90 mm")),
])
pad10 = doc.addObject("PartDesign::Pad", "Pad009")
body10.addObject(pad10)
pad10.Profile = sketch10
pad10.Length = 18
pad10.Reversed = True
body11 = doc.addObject("PartDesign::Body", "Body010")

# Sketch on XZ plane
sketch11 = doc.addObject("Sketcher::SketchObject", "Sketch010")
body11.addObject(sketch11)
sketch11.AttachmentSupport = (doc.getObject("XZ_Plane010"), [""])
sketch11.MapMode = "FlatFace"
sketch11.addGeometry([
    Part.LineSegment(App.Vector(-203, -762, 0), App.Vector(673, -762, 0)),  # 0
    Part.LineSegment(App.Vector(673, -762, 0), App.Vector(673, -352, 0)),  # 1
    Part.LineSegment(App.Vector(673, -352, 0), App.Vector(493, -352, 0)),  # 2
    Part.LineSegment(App.Vector(493, -352, 0), App.Vector(493, -422, 0)),  # 3
    Part.LineSegment(App.Vector(493, -422, 0), App.Vector(-203, -422, 0)),  # 4
    Part.LineSegment(App.Vector(-203, -422, 0), App.Vector(-203, -762, 0)),  # 5
    Part.Circle(App.Vector(581, -394, 0), App.Vector(0, 0, 1), 26),  # 6
], False)
sketch11.addConstraint([
    Sketcher.Constraint("Coincident", 0, 2, 1, 1),
    Sketcher.Constraint("Coincident", 1, 2, 2, 1),
    Sketcher.Constraint("Coincident", 2, 2, 3, 1),
    Sketcher.Constraint("Coincident", 3, 2, 4, 1),
    Sketcher.Constraint("Coincident", 4, 2, 5, 1),
    Sketcher.Constraint("Coincident", 5, 2, 0, 1),
    Sketcher.Constraint("Horizontal", 0),
    Sketcher.Constraint("Vertical", 1),
    Sketcher.Constraint("Horizontal", 2),
    Sketcher.Constraint("Vertical", 3),
    Sketcher.Constraint("Horizontal", 4),
    Sketcher.Constraint("Vertical", 5),
    Sketcher.Constraint("DistanceX", 0, 1, 0, 2, Q("876 mm")),
    Sketcher.Constraint("DistanceX", 2, 2, 2, 1, Q("180 mm")),
    Sketcher.Constraint("DistanceY", 1, 1, 1, 2, Q("410 mm")),
    Sketcher.Constraint("DistanceY", 3, 2, 3, 1, Q("70 mm")),
    Sketcher.Constraint("Diameter", 6, Q("51.452068 mm")),
    Sketcher.Constraint("DistanceY", 6, 3, -1, 1, Q("393.661082 mm")),
    Sketcher.Constraint("DistanceX", -1, 1, 0, 2, Q("673.017359 mm")),
    Sketcher.Constraint("DistanceX", 6, 3, 0, 2, Q("91.917432 mm")),
    Sketcher.Constraint("DistanceY", 0, 2, 6, 3, Q("368.060422 mm")),
])
pad11 = doc.addObject("PartDesign::Pad", "Pad010")
body11.addObject(pad11)
pad11.Profile = sketch11
pad11.Length = 18
body12 = doc.addObject("PartDesign::Body", "Body011")

# Sketch on XY plane
sketch12 = doc.addObject("Sketcher::SketchObject", "Sketch011")
body12.addObject(sketch12)
sketch12.AttachmentSupport = (doc.getObject("XY_Plane011"), [""])
sketch12.MapMode = "FlatFace"
sketch12.AttachmentOffset = App.Placement(App.Vector(0, 0, -761.721503), App.Rotation())
sketch12.addGeometry([
    Part.LineSegment(App.Vector(-203, -318, 0), App.Vector(-203, -18, 0)),  # 0
    Part.LineSegment(App.Vector(-203, -18, 0), App.Vector(397, -18, 0)),  # 1
    Part.LineSegment(App.Vector(397, -18, 0), App.Vector(397, -278, 0)),  # 2
    Part.ArcOfCircle(Part.Circle(App.Vector(357, -278, 0), App.Vector(0, 0, 1), 40), math.radians(-90), math.radians(0)),  # 3
    Part.LineSegment(App.Vector(357, -318, 0), App.Vector(-203, -318, 0)),  # 4
], False)
sketch12.addConstraint([
    Sketcher.Constraint("Coincident", 0, 2, 1, 1),
    Sketcher.Constraint("Coincident", 1, 2, 2, 1),
    Sketcher.Constraint("Tangent", 2, 2, 3, 2),
    Sketcher.Constraint("Tangent", 3, 1, 4, 1),
    Sketcher.Constraint("Coincident", 4, 2, 0, 1),
    Sketcher.Constraint("Vertical", 0),
    Sketcher.Constraint("Horizontal", 1),
    Sketcher.Constraint("Vertical", 2),
    Sketcher.Constraint("Horizontal", 4),
    Sketcher.Constraint("Radius", 3, Q("40 mm")),
    Sketcher.Constraint("DistanceX", 1, 1, 1, 2, Q("600 mm")),
    Sketcher.Constraint("DistanceY", 0, 1, 0, 2, Q("300 mm")),
    Sketcher.Constraint("DistanceY", 3, 3, -1, 1, Q("278 mm")),
    Sketcher.Constraint("DistanceX", -1, 1, 3, 3, Q("357.017359 mm")),
])
pad12 = doc.addObject("PartDesign::Pad", "Pad011")
body12.addObject(pad12)
pad12.Profile = sketch12
pad12.Length = 18
pad12.Reversed = True
doc.recompute()

fillet2 = doc.addObject("PartDesign::Fillet", "Fillet001")
body12.addObject(fillet2)
fillet2.Base = (pad12, edges_at(pad12, [(77.017, -318, -761.722), (385.302, -306.284, -761.722), (397.017, -148, -761.722)]))
fillet2.Radius = 5
body13 = doc.addObject("PartDesign::Body", "Body012")

# Sketch on XZ plane
sketch13 = doc.addObject("Sketcher::SketchObject", "Sketch012")
body13.addObject(sketch13)
sketch13.AttachmentSupport = (doc.getObject("XZ_Plane012"), [""])
sketch13.MapMode = "FlatFace"
sketch13.AttachmentOffset = App.Placement(App.Vector(0, 0, 36), App.Rotation())
sketch13.addGeometry([
    Part.LineSegment(App.Vector(-1276, -348, 0), App.Vector(-1276, -518, 0)),
    Part.LineSegment(App.Vector(-1276, -518, 0), App.Vector(-876, -518, 0)),
    Part.LineSegment(App.Vector(-876, -518, 0), App.Vector(-876, -348, 0)),
    Part.LineSegment(App.Vector(-876, -348, 0), App.Vector(-1276, -348, 0)),
], False)
sketch13.addConstraint([
    Sketcher.Constraint("Coincident", 0, 2, 1, 1),
    Sketcher.Constraint("Coincident", 1, 2, 2, 1),
    Sketcher.Constraint("Coincident", 2, 2, 3, 1),
    Sketcher.Constraint("Coincident", 3, 2, 0, 1),
    Sketcher.Constraint("Vertical", 0),
    Sketcher.Constraint("Horizontal", 1),
    Sketcher.Constraint("Vertical", 2),
    Sketcher.Constraint("Horizontal", 3),
    Sketcher.Constraint("DistanceX", 1, 1, 1, 2, Q("400 mm")),
    Sketcher.Constraint("DistanceY", 0, 2, 0, 1, Q("170 mm")),
    Sketcher.Constraint("DistanceY", 0, 2, -1, 1, Q("517.686272 mm")),
    Sketcher.Constraint("DistanceX", 0, 2, -1, 1, Q("1276.199204 mm")),
])
pad13 = doc.addObject("PartDesign::Pad", "Pad012")
body13.addObject(pad13)
pad13.Profile = sketch13
pad13.Length = 18
body14 = doc.addObject("PartDesign::Body", "Body013")

# Sketch on XZ plane
sketch14 = doc.addObject("Sketcher::SketchObject", "Sketch013")
body14.addObject(sketch14)
sketch14.AttachmentSupport = (doc.getObject("XZ_Plane013"), [""])
sketch14.MapMode = "FlatFace"
sketch14.AttachmentOffset = App.Placement(App.Vector(0, 0, 36), App.Rotation())
sketch14.addGeometry([
    Part.LineSegment(App.Vector(-1280, 0, 0), App.Vector(-1280, -190, 0)),
    Part.LineSegment(App.Vector(-1280, -190, 0), App.Vector(-880, -190, 0)),
    Part.LineSegment(App.Vector(-880, -190, 0), App.Vector(-880, 0, 0)),
    Part.LineSegment(App.Vector(-880, 0, 0), App.Vector(-1280, 0, 0)),
], False)
sketch14.addConstraint([
    Sketcher.Constraint("Coincident", 0, 2, 1, 1),
    Sketcher.Constraint("Coincident", 1, 2, 2, 1),
    Sketcher.Constraint("Coincident", 2, 2, 3, 1),
    Sketcher.Constraint("Coincident", 3, 2, 0, 1),
    Sketcher.Constraint("Vertical", 0),
    Sketcher.Constraint("Horizontal", 1),
    Sketcher.Constraint("Vertical", 2),
    Sketcher.Constraint("Horizontal", 3),
    Sketcher.Constraint("PointOnObject", 2, 2, -1),
    Sketcher.Constraint("DistanceX", 1, 1, 1, 2, Q("400 mm")),
    Sketcher.Constraint("DistanceY", 0, 2, 0, 1, Q("190 mm")),
    Sketcher.Constraint("DistanceX", 0, 2, -1, 1, Q("1280.317497 mm")),
])
pad14 = doc.addObject("PartDesign::Pad", "Pad013")
body14.addObject(pad14)
pad14.Profile = sketch14
pad14.Length = 1
body15 = doc.addObject("PartDesign::Body", "Body014")

# Sketch on XY plane
sketch15 = doc.addObject("Sketcher::SketchObject", "Sketch014")
body15.addObject(sketch15)
sketch15.AttachmentSupport = (doc.getObject("XY_Plane014"), [""])
sketch15.MapMode = "FlatFace"
sketch15.AttachmentOffset = App.Placement(App.Vector(0, 0, 18), App.Rotation())
sketch15.addGeometry([
    Part.LineSegment(App.Vector(512, 559, 0), App.Vector(-468, 559, 0)),  # 0
    Part.LineSegment(App.Vector(-468, 559, 0), App.Vector(-468, 409, 0)),  # 1
    Part.LineSegment(App.Vector(-468, 409, 0), App.Vector(-204, 359, 0)),  # 2
    Part.LineSegment(App.Vector(-204, 359, 0), App.Vector(248, 359, 0)),  # 3
    Part.LineSegment(App.Vector(248, 359, 0), App.Vector(512, 409, 0)),  # 4
    Part.LineSegment(App.Vector(512, 409, 0), App.Vector(512, 559, 0)),  # 5
], False)
sketch15.addConstraint([
    Sketcher.Constraint("Coincident", 0, 2, 1, 1),
    Sketcher.Constraint("Coincident", 1, 2, 2, 1),
    Sketcher.Constraint("Coincident", 2, 2, 3, 1),
    Sketcher.Constraint("Coincident", 3, 2, 4, 1),
    Sketcher.Constraint("Coincident", 4, 2, 5, 1),
    Sketcher.Constraint("Coincident", 5, 2, 0, 1),
    Sketcher.Constraint("Horizontal", 0),
    Sketcher.Constraint("Vertical", 1),
    Sketcher.Constraint("Horizontal", 3),
    Sketcher.Constraint("Vertical", 5),
    Sketcher.Constraint("Horizontal", 1, 2, 4, 2),
    Sketcher.Constraint("Equal", 2, 4),
    Sketcher.Constraint("DistanceX", 0, 2, 0, 1, Q("980 mm")),
    Sketcher.Constraint("DistanceY", 1, 2, 1, 1, Q("150 mm")),
    Sketcher.Constraint("DistanceY", 2, 2, 1, 2, Q("50 mm")),
    Sketcher.Constraint("DistanceX", 3, 1, 3, 2, Q("452.864081 mm")),
    Sketcher.Constraint("DistanceY", -1, 1, 0, 2, Q("559.202158 mm")),
    Sketcher.Constraint("DistanceX", 0, 2, -1, 1, Q("468.017136 mm")),
])
pad15 = doc.addObject("PartDesign::Pad", "Pad014")
body15.addObject(pad15)
pad15.Profile = sketch15
pad15.Length = 18

doc.recompute()
